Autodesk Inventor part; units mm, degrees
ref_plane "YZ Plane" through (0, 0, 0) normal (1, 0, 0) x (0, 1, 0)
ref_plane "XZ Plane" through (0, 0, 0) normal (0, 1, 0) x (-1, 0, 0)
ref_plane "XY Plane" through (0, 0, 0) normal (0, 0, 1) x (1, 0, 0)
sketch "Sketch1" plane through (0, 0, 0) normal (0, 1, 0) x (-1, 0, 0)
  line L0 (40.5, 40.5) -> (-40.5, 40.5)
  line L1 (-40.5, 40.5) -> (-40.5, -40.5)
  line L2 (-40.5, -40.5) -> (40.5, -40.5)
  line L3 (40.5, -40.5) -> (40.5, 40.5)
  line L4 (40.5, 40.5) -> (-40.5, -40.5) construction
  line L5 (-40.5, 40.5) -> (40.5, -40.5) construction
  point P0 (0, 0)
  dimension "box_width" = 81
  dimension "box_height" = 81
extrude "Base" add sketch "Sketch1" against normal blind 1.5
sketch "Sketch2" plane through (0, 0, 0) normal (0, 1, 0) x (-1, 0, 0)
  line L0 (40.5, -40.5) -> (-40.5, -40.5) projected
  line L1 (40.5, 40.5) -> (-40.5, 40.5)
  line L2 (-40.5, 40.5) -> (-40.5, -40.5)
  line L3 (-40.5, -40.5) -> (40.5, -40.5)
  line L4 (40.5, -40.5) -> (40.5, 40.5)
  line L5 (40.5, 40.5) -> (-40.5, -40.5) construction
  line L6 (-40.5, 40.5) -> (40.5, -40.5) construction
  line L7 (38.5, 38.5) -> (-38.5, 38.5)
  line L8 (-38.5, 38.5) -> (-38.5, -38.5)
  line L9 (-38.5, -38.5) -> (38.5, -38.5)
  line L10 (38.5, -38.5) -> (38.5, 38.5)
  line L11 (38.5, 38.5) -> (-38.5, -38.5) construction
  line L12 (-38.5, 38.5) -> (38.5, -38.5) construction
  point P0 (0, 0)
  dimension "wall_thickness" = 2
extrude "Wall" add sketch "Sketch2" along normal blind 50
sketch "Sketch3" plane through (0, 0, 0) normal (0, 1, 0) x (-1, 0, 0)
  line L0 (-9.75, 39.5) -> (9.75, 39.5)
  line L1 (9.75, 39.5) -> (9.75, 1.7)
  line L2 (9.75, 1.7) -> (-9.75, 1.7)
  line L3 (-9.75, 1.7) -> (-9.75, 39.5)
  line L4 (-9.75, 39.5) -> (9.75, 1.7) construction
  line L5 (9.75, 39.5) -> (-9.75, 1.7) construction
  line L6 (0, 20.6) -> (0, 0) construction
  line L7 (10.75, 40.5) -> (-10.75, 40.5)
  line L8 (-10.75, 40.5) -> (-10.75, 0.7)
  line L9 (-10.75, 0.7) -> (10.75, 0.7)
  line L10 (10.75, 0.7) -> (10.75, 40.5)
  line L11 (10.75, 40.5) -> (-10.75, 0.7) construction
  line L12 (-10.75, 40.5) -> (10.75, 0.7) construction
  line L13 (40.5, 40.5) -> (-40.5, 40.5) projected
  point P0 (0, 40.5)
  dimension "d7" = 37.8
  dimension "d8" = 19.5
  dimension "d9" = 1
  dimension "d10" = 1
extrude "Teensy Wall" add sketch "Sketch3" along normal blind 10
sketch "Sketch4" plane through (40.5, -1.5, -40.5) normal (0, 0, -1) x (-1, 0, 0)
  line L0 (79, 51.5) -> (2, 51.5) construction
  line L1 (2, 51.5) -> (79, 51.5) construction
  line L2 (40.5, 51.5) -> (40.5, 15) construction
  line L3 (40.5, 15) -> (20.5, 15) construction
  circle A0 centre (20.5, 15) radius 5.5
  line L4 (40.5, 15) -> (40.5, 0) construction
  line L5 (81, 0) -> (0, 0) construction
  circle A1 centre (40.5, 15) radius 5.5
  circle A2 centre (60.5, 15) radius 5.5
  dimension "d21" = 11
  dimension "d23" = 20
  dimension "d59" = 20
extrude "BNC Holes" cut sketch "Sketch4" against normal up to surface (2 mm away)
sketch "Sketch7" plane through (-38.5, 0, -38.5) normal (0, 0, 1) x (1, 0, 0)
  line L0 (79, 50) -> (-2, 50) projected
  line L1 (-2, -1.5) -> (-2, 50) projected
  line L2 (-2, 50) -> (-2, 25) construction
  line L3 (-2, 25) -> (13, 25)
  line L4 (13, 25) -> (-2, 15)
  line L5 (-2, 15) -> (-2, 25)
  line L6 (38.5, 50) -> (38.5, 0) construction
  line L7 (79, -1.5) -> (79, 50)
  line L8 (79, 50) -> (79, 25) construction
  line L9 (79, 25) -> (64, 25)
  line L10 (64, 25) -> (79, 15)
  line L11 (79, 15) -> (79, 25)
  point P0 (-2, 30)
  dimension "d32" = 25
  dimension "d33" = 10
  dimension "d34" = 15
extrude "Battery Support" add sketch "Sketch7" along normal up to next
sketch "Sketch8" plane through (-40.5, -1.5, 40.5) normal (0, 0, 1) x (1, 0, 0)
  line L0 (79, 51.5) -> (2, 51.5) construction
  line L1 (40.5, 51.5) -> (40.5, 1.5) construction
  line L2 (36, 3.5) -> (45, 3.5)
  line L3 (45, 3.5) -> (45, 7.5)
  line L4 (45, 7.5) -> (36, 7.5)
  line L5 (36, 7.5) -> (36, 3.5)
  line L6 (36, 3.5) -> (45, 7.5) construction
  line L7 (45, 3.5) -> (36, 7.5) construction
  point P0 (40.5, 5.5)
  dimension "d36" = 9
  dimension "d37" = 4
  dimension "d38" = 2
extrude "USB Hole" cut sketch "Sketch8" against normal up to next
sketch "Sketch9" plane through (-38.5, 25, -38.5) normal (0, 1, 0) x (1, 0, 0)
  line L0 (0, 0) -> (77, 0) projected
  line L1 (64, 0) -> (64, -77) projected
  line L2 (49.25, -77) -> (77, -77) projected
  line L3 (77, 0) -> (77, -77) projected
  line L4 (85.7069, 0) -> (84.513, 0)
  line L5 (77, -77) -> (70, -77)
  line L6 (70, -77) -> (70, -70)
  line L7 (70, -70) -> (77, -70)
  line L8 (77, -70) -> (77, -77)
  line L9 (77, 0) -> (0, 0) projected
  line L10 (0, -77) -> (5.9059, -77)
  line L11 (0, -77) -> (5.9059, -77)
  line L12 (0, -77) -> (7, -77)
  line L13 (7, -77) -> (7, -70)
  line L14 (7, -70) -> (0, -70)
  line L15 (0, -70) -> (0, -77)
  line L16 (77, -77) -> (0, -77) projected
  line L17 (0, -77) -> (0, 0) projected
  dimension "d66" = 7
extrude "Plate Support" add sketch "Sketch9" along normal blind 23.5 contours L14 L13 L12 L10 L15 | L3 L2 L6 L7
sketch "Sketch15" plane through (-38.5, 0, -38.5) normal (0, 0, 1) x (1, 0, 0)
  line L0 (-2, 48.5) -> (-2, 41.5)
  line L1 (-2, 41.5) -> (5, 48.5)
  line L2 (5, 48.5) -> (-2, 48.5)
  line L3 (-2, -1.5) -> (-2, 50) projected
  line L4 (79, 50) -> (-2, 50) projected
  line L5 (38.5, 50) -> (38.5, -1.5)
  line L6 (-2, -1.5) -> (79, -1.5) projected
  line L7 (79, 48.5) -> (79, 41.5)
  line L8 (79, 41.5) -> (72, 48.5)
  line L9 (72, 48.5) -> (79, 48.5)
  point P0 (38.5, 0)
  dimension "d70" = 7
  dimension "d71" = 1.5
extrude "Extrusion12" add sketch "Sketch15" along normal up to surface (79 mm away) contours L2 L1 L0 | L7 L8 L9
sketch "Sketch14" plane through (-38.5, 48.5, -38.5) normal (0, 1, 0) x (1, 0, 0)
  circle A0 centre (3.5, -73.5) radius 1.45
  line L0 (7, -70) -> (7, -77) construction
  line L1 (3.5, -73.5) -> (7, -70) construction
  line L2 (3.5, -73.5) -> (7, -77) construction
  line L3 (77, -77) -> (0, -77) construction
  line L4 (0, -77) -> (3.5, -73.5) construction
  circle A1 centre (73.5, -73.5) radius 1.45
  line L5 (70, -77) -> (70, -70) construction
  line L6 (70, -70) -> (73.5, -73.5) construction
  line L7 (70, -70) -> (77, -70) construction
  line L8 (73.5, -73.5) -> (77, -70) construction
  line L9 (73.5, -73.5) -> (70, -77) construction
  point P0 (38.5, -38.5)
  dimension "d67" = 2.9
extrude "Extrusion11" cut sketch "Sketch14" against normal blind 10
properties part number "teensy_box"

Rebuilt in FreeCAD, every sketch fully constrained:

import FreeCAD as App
import Part
import Sketcher
Q = App.Units.Quantity

doc = App.newDocument("Part")
body = doc.addObject("PartDesign::Body", "Body")

# Sketch on XZ plane
sketch1 = body.newObject("Sketcher::SketchObject", "Sketch")
sketch1.AttachmentSupport = (doc.getObject("XZ_Plane"), [""])
sketch1.MapMode = "FlatFace"
sketch1.addGeometry([
    Part.LineSegment(App.Vector(-40, -40, 0), App.Vector(-40, 40, 0)),
    Part.LineSegment(App.Vector(-40, 40, 0), App.Vector(40, 40, 0)),
    Part.LineSegment(App.Vector(40, 40, 0), App.Vector(40, -40, 0)),
    Part.LineSegment(App.Vector(40, -40, 0), App.Vector(-40, -40, 0)),
], False)
sketch1.addConstraint([
    Sketcher.Constraint("Coincident", 0, 2, 1, 1),
    Sketcher.Constraint("Coincident", 1, 2, 2, 1),
    Sketcher.Constraint("Coincident", 2, 2, 3, 1),
    Sketcher.Constraint("Coincident", 3, 2, 0, 1),
    Sketcher.Constraint("Vertical", 0),
    Sketcher.Constraint("Horizontal", 1),
    Sketcher.Constraint("Vertical", 2),
    Sketcher.Constraint("Horizontal", 3),
    Sketcher.Constraint("Symmetric", 0, 2, 2, 2, -1, 1),
    Sketcher.Constraint("Equal", 3, 0),
    Sketcher.Constraint("DistanceX", 1, 1, 1, 2, Q("81 mm")),
])
pad1 = body.newObject("PartDesign::Pad", "Pad")
pad1.Profile = sketch1
pad1.Length = 1.5

# Sketch on XZ plane
sketch2 = body.newObject("Sketcher::SketchObject", "Sketch001")
sketch2.AttachmentSupport = (doc.getObject("XZ_Plane"), [""])
sketch2.MapMode = "FlatFace"
sketch2.addGeometry([
    Part.LineSegment(App.Vector(40, -40, 0), App.Vector(-40, -40, 0)),  # 0
    Part.LineSegment(App.Vector(-40, -40, 0), App.Vector(-40, 40, 0)),  # 1
    Part.LineSegment(App.Vector(-40, 40, 0), App.Vector(40, 40, 0)),  # 2
    Part.LineSegment(App.Vector(40, 40, 0), App.Vector(40, -40, 0)),  # 3
    Part.LineSegment(App.Vector(38, 38, 0), App.Vector(-38, 38, 0)),  # 4
    Part.LineSegment(App.Vector(-38, 38, 0), App.Vector(-38, -38, 0)),  # 5
    Part.LineSegment(App.Vector(-38, -38, 0), App.Vector(38, -38, 0)),  # 6
    Part.LineSegment(App.Vector(38, -38, 0), App.Vector(38, 38, 0)),  # 7
], False)
sketch2.addConstraint([
    Sketcher.Constraint("Coincident", 0, 2, 1, 1),
    Sketcher.Constraint("Coincident", 1, 2, 2, 1),
    Sketcher.Constraint("Coincident", 2, 2, 3, 1),
    Sketcher.Constraint("Coincident", 3, 2, 0, 1),
    Sketcher.Constraint("Coincident", 4, 2, 5, 1),
    Sketcher.Constraint("Coincident", 5, 2, 6, 1),
    Sketcher.Constraint("Coincident", 6, 2, 7, 1),
    Sketcher.Constraint("Coincident", 7, 2, 4, 1),
    Sketcher.Constraint("Horizontal", 0),
    Sketcher.Constraint("Vertical", 1),
    Sketcher.Constraint("Horizontal", 2),
    Sketcher.Constraint("Vertical", 3),
    Sketcher.Constraint("Horizontal", 4),
    Sketcher.Constraint("Vertical", 5),
    Sketcher.Constraint("Horizontal", 6),
    Sketcher.Constraint("Vertical", 7),
    Sketcher.Constraint("Symmetric", 0, 2, 2, 2, -1, 1),
    Sketcher.Constraint("Symmetric", 4, 2, 6, 2, -1, 1),
    Sketcher.Constraint("Equal", 2, 1),
    Sketcher.Constraint("Equal", 6, 5),
    Sketcher.Constraint("DistanceX", 1, 2, 4, 2, Q("2 mm")),
    Sketcher.Constraint("DistanceX", 0, 2, 0, 1, Q("81 mm")),
])
pad2 = body.newObject("PartDesign::Pad", "Pad001")
pad2.Profile = sketch2
pad2.Length = 50
pad2.Reversed = True

# Sketch on XZ plane
sketch3 = body.newObject("Sketcher::SketchObject", "Sketch002")
sketch3.AttachmentSupport = (doc.getObject("XZ_Plane"), [""])
sketch3.MapMode = "FlatFace"
sketch3.addGeometry([
    Part.LineSegment(App.Vector(-11, 1, 0), App.Vector(-11, 40, 0)),  # 0
    Part.LineSegment(App.Vector(-11, 40, 0), App.Vector(11, 40, 0)),  # 1
    Part.LineSegment(App.Vector(11, 40, 0), App.Vector(11, 1, 0)),  # 2
    Part.LineSegment(App.Vector(11, 1, 0), App.Vector(-11, 1, 0)),  # 3
    Part.LineSegment(App.Vector(10, 2, 0), App.Vector(10, 40, 0)),  # 4
    Part.LineSegment(App.Vector(10, 40, 0), App.Vector(-10, 40, 0)),  # 5
    Part.LineSegment(App.Vector(-10, 40, 0), App.Vector(-10, 2, 0)),  # 6
    Part.LineSegment(App.Vector(-10, 2, 0), App.Vector(10, 2, 0)),  # 7
], False)
sketch3.addConstraint([
    Sketcher.Constraint("Coincident", 0, 2, 1, 1),
    Sketcher.Constraint("Coincident", 1, 2, 2, 1),
    Sketcher.Constraint("Coincident", 2, 2, 3, 1),
    Sketcher.Constraint("Coincident", 3, 2, 0, 1),
    Sketcher.Constraint("Coincident", 4, 2, 5, 1),
    Sketcher.Constraint("Coincident", 5, 2, 6, 1),
    Sketcher.Constraint("Coincident", 6, 2, 7, 1),
    Sketcher.Constraint("Coincident", 7, 2, 4, 1),
    Sketcher.Constraint("Vertical", 0),
    Sketcher.Constraint("Horizontal", 1),
    Sketcher.Constraint("Vertical", 2),
    Sketcher.Constraint("Horizontal", 3),
    Sketcher.Constraint("Vertical", 4),
    Sketcher.Constraint("Horizontal", 5),
    Sketcher.Constraint("Vertical", 6),
    Sketcher.Constraint("Horizontal", 7),
    Sketcher.Constraint("DistanceX", 5, 2, 5, 1, Q("19.5 mm")),
    Sketcher.Constraint("DistanceY", 4, 1, 4, 2, Q("37.8 mm")),
    Sketcher.Constraint("DistanceX", 4, 2, 1, 2, Q("1 mm")),
    Sketcher.Constraint("DistanceY", 4, 2, 1, 2, Q("1 mm")),
    Sketcher.Constraint("DistanceX", 0, 2, 5, 2, Q("1 mm")),
    Sketcher.Constraint("DistanceY", 3, 2, 6, 2, Q("1 mm")),
    Sketcher.Constraint("DistanceY", -1, 1, 0, 2, Q("40.5 mm")),
    Sketcher.Constraint("DistanceX", 0, 2, -1, 1, Q("10.75 mm")),
])
pad3 = body.newObject("PartDesign::Pad", "Pad002")
pad3.Profile = sketch3
pad3.Length = 10
pad3.Reversed = True

# Sketch on XY plane
sketch4 = body.newObject("Sketcher::SketchObject", "Sketch003")
sketch4.AttachmentSupport = (doc.getObject("XY_Plane"), [""])
sketch4.MapMode = "FlatFace"
sketch4.AttachmentOffset = App.Placement(App.Vector(0, 0, -40.5), App.Rotation())
sketch4.addGeometry([
    Part.Circle(App.Vector(20, 14, 0), App.Vector(0, 0, 1), 6),
    Part.Circle(App.Vector(0, 14, 0), App.Vector(0, 0, 1), 6),
    Part.Circle(App.Vector(-20, 14, 0), App.Vector(0, 0, 1), 6),
], False)
sketch4.addConstraint([
    Sketcher.Constraint("Equal", 0, 1),
    Sketcher.Constraint("Equal", 1, 2),
    Sketcher.Constraint("Symmetric", 0, 3, 2, 3, -2),
    Sketcher.Constraint("PointOnObject", 1, 3, -2),
    Sketcher.Constraint("Horizontal", 0, 3, 1, 3),
    Sketcher.Constraint("Diameter", 0, Q("11 mm")),
    Sketcher.Constraint("DistanceX", -1, 1, 0, 3, Q("20 mm")),
    Sketcher.Constraint("DistanceY", -1, 1, 0, 3, Q("13.5 mm")),
])
pocket1 = body.newObject("PartDesign::Pocket", "Pocket")
pocket1.Profile = sketch4
pocket1.Length = 2
pocket1.Reversed = True

# Sketch on XY plane
sketch5 = body.newObject("Sketcher::SketchObject", "Sketch004")
sketch5.AttachmentSupport = (doc.getObject("XY_Plane"), [""])
sketch5.MapMode = "FlatFace"
sketch5.AttachmentOffset = App.Placement(App.Vector(0, 0, -38.5), App.Rotation())
sketch5.addGeometry([
    Part.LineSegment(App.Vector(-26, 25, 0), App.Vector(-40, 25, 0)),  # 0
    Part.LineSegment(App.Vector(-40, 25, 0), App.Vector(-40, 15, 0)),  # 1
    Part.LineSegment(App.Vector(-40, 15, 0), App.Vector(-26, 25, 0)),  # 2
    Part.LineSegment(App.Vector(40, 15, 0), App.Vector(40, 25, 0)),  # 3
    Part.LineSegment(App.Vector(40, 25, 0), App.Vector(26, 25, 0)),  # 4
    Part.LineSegment(App.Vector(26, 25, 0), App.Vector(40, 15, 0)),  # 5
], False)
sketch5.addConstraint([
    Sketcher.Constraint("Coincident", 0, 2, 1, 1),
    Sketcher.Constraint("Coincident", 1, 2, 2, 1),
    Sketcher.Constraint("Coincident", 2, 2, 0, 1),
    Sketcher.Constraint("Coincident", 3, 2, 4, 1),
    Sketcher.Constraint("Coincident", 4, 2, 5, 1),
    Sketcher.Constraint("Coincident", 5, 2, 3, 1),
    Sketcher.Constraint("Horizontal", 0),
    Sketcher.Constraint("Vertical", 1),
    Sketcher.Constraint("Vertical", 3),
    Sketcher.Constraint("Horizontal", 4),
    Sketcher.Constraint("Symmetric", 0, 2, 3, 2, -2),
    Sketcher.Constraint("Horizontal", 1, 2, 5, 2),
    Sketcher.Constraint("Equal", 0, 4),
    Sketcher.Constraint("DistanceX", 0, 2, 0, 1, Q("15 mm")),
    Sketcher.Constraint("DistanceY", 1, 2, 1, 1, Q("10 mm")),
    Sketcher.Constraint("DistanceY", -1, 1, 0, 2, Q("25 mm")),
    Sketcher.Constraint("DistanceX", 2, 2, 3, 2, Q("66 mm")),
])
pad4 = body.newObject("PartDesign::Pad", "Pad003")
pad4.Profile = sketch5
pad4.Type = "UpToFirst"

# Sketch on XY plane
sketch6 = body.newObject("Sketcher::SketchObject", "Sketch005")
sketch6.AttachmentSupport = (doc.getObject("XY_Plane"), [""])
sketch6.MapMode = "FlatFace"
sketch6.AttachmentOffset = App.Placement(App.Vector(0, 0, 40.5), App.Rotation())
sketch6.addGeometry([
    Part.LineSegment(App.Vector(-4.5, 6, 0), App.Vector(-4.5, 2, 0)),
    Part.LineSegment(App.Vector(-4.5, 2, 0), App.Vector(4.5, 2, 0)),
    Part.LineSegment(App.Vector(4.5, 2, 0), App.Vector(4.5, 6, 0)),
    Part.LineSegment(App.Vector(4.5, 6, 0), App.Vector(-4.5, 6, 0)),
], False)
sketch6.addConstraint([
    Sketcher.Constraint("Coincident", 0, 2, 1, 1),
    Sketcher.Constraint("Coincident", 1, 2, 2, 1),
    Sketcher.Constraint("Coincident", 2, 2, 3, 1),
    Sketcher.Constraint("Coincident", 3, 2, 0, 1),
    Sketcher.Constraint("Vertical", 0),
    Sketcher.Constraint("Horizontal", 1),
    Sketcher.Constraint("Vertical", 2),
    Sketcher.Constraint("Horizontal", 3),
    Sketcher.Constraint("DistanceX", 1, 1, 1, 2, Q("9 mm")),
    Sketcher.Constraint("DistanceY", 0, 2, 0, 1, Q("4 mm")),
    Sketcher.Constraint("DistanceY", -1, 1, 0, 2, Q("2 mm")),
    Sketcher.Constraint("DistanceX", 0, 2, -1, 1, Q("4.5 mm")),
])
pocket2 = body.newObject("PartDesign::Pocket", "Pocket001")
pocket2.Profile = sketch6
pocket2.Type = "UpToFirst"

# Sketch on XZ plane
sketch7 = body.newObject("Sketcher::SketchObject", "Sketch006")
sketch7.AttachmentSupport = (doc.getObject("XZ_Plane"), [""])
sketch7.MapMode = "FlatFace"
sketch7.AttachmentOffset = App.Placement(App.Vector(0, 0, -25), App.Rotation())
sketch7.addGeometry([
    Part.LineSegment(App.Vector(-32, 32, 0), App.Vector(-38, 32, 0)),  # 0
    Part.LineSegment(App.Vector(-38, 32, 0), App.Vector(-38, 38, 0)),  # 1
    Part.LineSegment(App.Vector(-38, 38, 0), App.Vector(-32, 38, 0)),  # 2
    Part.LineSegment(App.Vector(-32, 38, 0), App.Vector(-32, 32, 0)),  # 3
    Part.LineSegment(App.Vector(38, 38, 0), App.Vector(38, 32, 0)),  # 4
    Part.LineSegment(App.Vector(38, 32, 0), App.Vector(32, 32, 0)),  # 5
    Part.LineSegment(App.Vector(32, 32, 0), App.Vector(32, 38, 0)),  # 6
    Part.LineSegment(App.Vector(32, 38, 0), App.Vector(38, 38, 0)),  # 7
], False)
sketch7.addConstraint([
    Sketcher.Constraint("Coincident", 0, 2, 1, 1),
    Sketcher.Constraint("Coincident", 1, 2, 2, 1),
    Sketcher.Constraint("Coincident", 2, 2, 3, 1),
    Sketcher.Constraint("Coincident", 3, 2, 0, 1),
    Sketcher.Constraint("Coincident", 4, 2, 5, 1),
    Sketcher.Constraint("Coincident", 5, 2, 6, 1),
    Sketcher.Constraint("Coincident", 6, 2, 7, 1),
    Sketcher.Constraint("Coincident", 7, 2, 4, 1),
    Sketcher.Constraint("Horizontal", 0),
    Sketcher.Constraint("Vertical", 1),
    Sketcher.Constraint("Horizontal", 2),
    Sketcher.Constraint("Vertical", 3),
    Sketcher.Constraint("Vertical", 4),
    Sketcher.Constraint("Horizontal", 5),
    Sketcher.Constraint("Vertical", 6),
    Sketcher.Constraint("Horizontal", 7),
    Sketcher.Constraint("Symmetric", 0, 2, 4, 2, -2),
    Sketcher.Constraint("Symmetric", 2, 2, 6, 2, -2),
    Sketcher.Constraint("Equal", 7, 1),
    Sketcher.Constraint("DistanceX", 0, 2, 0, 1, Q("7 mm")),
    Sketcher.Constraint("DistanceX", 3, 2, 4, 2, Q("70 mm")),
    Sketcher.Constraint("DistanceY", -1, 1, 0, 2, Q("31.5 mm")),
])
pad5 = body.newObject("PartDesign::Pad", "Pad004")
pad5.Profile = sketch7
pad5.Length = 23.5
pad5.Reversed = True

# Sketch on XY plane
sketch8 = body.newObject("Sketcher::SketchObject", "Sketch007")
sketch8.AttachmentSupport = (doc.getObject("XY_Plane"), [""])
sketch8.MapMode = "FlatFace"
sketch8.AttachmentOffset = App.Placement(App.Vector(0, 0, -38.5), App.Rotation())
sketch8.addGeometry([
    Part.LineSegment(App.Vector(-34, 48, 0), App.Vector(-40, 48, 0)),  # 0
    Part.LineSegment(App.Vector(-40, 48, 0), App.Vector(-40, 42, 0)),  # 1
    Part.LineSegment(App.Vector(-40, 42, 0), App.Vector(-34, 48, 0)),  # 2
    Part.LineSegment(App.Vector(40, 42, 0), App.Vector(40, 48, 0)),  # 3
    Part.LineSegment(App.Vector(40, 48, 0), App.Vector(34, 48, 0)),  # 4
    Part.LineSegment(App.Vector(34, 48, 0), App.Vector(40, 42, 0)),  # 5
], False)
sketch8.addConstraint([
    Sketcher.Constraint("Coincident", 0, 2, 1, 1),
    Sketcher.Constraint("Coincident", 1, 2, 2, 1),
    Sketcher.Constraint("Coincident", 2, 2, 0, 1),
    Sketcher.Constraint("Coincident", 3, 2, 4, 1),
    Sketcher.Constraint("Coincident", 4, 2, 5, 1),
    Sketcher.Constraint("Coincident", 5, 2, 3, 1),
    Sketcher.Constraint("Horizontal", 0),
    Sketcher.Constraint("Vertical", 1),
    Sketcher.Constraint("Vertical", 3),
    Sketcher.Constraint("Horizontal", 4),
    Sketcher.Constraint("Symmetric", 0, 2, 3, 2, -2),
    Sketcher.Constraint("Perpendicular", 2, 5),
    Sketcher.Constraint("Horizontal", 1, 2, 5, 2),
    Sketcher.Constraint("Equal", 0, 4),
    Sketcher.Constraint("DistanceX", 0, 2, 0, 1, Q("7 mm")),
    Sketcher.Constraint("DistanceX", 2, 2, 3, 2, Q("74 mm")),
    Sketcher.Constraint("DistanceY", -1, 1, 0, 2, Q("48.5 mm")),
])
pad6 = body.newObject("PartDesign::Pad", "Pad005")
pad6.Profile = sketch8
pad6.Length = 79

# Sketch on XZ plane
sketch9 = body.newObject("Sketcher::SketchObject", "Sketch008")
sketch9.AttachmentSupport = (doc.getObject("XZ_Plane"), [""])
sketch9.MapMode = "FlatFace"
sketch9.AttachmentOffset = App.Placement(App.Vector(0, 0, -48.5), App.Rotation())
sketch9.addGeometry([
    Part.Circle(App.Vector(-35, 35, 0), App.Vector(0, 0, 1), 1.4),
    Part.Circle(App.Vector(35, 35, 0), App.Vector(0, 0, 1), 1.4),
], False)
sketch9.addConstraint([
    Sketcher.Constraint("Equal", 0, 1),
    Sketcher.Constraint("Symmetric", 0, 3, 1, 3, -2),
    Sketcher.Constraint("Diameter", 0, Q("2.9 mm")),
    Sketcher.Constraint("DistanceX", 0, 3, -1, 1, Q("35 mm")),
    Sketcher.Constraint("DistanceY", -1, 1, 0, 3, Q("35 mm")),
])
pocket3 = body.newObject("PartDesign::Pocket", "Pocket002")
pocket3.Profile = sketch9
pocket3.Length = 10
pocket3.Reversed = True

doc.recompute()
